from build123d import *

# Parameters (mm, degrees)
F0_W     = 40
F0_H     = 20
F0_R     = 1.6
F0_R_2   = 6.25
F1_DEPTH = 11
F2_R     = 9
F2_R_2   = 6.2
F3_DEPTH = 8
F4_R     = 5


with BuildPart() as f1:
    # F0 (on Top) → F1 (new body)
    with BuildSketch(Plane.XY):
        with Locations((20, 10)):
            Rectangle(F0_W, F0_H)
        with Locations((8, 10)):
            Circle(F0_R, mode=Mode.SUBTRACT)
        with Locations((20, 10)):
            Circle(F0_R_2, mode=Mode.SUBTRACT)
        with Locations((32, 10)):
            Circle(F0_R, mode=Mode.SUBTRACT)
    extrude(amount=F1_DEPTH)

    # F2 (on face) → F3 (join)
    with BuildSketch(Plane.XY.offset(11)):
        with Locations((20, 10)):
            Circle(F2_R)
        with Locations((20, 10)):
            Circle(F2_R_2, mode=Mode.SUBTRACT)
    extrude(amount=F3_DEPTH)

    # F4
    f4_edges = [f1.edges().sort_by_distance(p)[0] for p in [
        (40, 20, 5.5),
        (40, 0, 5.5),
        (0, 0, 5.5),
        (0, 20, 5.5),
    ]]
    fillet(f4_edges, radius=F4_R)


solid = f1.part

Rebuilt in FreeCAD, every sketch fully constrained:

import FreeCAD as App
import Part
import Sketcher
Q = App.Units.Quantity


def edges_at(feature, points):
    """Names of the edges that pass closest to the given points."""
    edges = feature.Shape.Edges
    near = lambda p: min(range(len(edges)), key=lambda i: edges[i].distToShape(Part.Vertex(*p))[0])
    return sorted({f"Edge{near(p) + 1}" for p in points})

doc = App.newDocument("Part")
body = doc.addObject("PartDesign::Body", "Body")

sketch1 = body.newObject("Sketcher::SketchObject", "Sketch")
sketch1.AttachmentSupport = (doc.getObject("XY_Plane"), [""])
sketch1.MapMode = "FlatFace"
sketch1.addGeometry([
    Part.LineSegment(App.Vector(0, 20, 0), App.Vector(0, 0, 0)),
    Part.LineSegment(App.Vector(0, 0, 0), App.Vector(40, 0, 0)),
    Part.LineSegment(App.Vector(40, 0, 0), App.Vector(40, 20, 0)),
    Part.LineSegment(App.Vector(40, 20, 0), App.Vector(0, 20, 0)),
    Part.Circle(App.Vector(8, 10, 0), App.Vector(0, 0, 1), 1.6),
    Part.Circle(App.Vector(20, 10, 0), App.Vector(0, 0, 1), 6.2),
    Part.Circle(App.Vector(32, 10, 0), App.Vector(0, 0, 1), 1.6),
], False)
sketch1.addConstraint([
    Sketcher.Constraint("Coincident", 0, 2, 1, 1),
    Sketcher.Constraint("Coincident", 1, 2, 2, 1),
    Sketcher.Constraint("Coincident", 2, 2, 3, 1),
    Sketcher.Constraint("Coincident", 3, 2, 0, 1),
    Sketcher.Constraint("Vertical", 0),
    Sketcher.Constraint("Horizontal", 1),
    Sketcher.Constraint("Vertical", 2),
    Sketcher.Constraint("Horizontal", 3),
    Sketcher.Constraint("Coincident", 0, 2, -1, 1),
    Sketcher.Constraint("Equal", 4, 6),
    Sketcher.Constraint("Horizontal", 4, 3, 5, 3),
    Sketcher.Constraint("Horizontal", 5, 3, 6, 3),
    Sketcher.Constraint("Diameter", 4, Q("3.2 mm")),
    Sketcher.Constraint("Diameter", 5, Q("12.5 mm")),
    Sketcher.Constraint("DistanceX", 1, 1, 1, 2, Q("40 mm")),
    Sketcher.Constraint("DistanceY", 0, 2, 0, 1, Q("20 mm")),
    Sketcher.Constraint("DistanceX", -1, 1, 4, 3, Q("8 mm")),
    Sketcher.Constraint("DistanceY", -1, 1, 4, 3, Q("10 mm")),
    Sketcher.Constraint("DistanceX", -1, 1, 5, 3, Q("20 mm")),
    Sketcher.Constraint("DistanceX", -1, 1, 6, 3, Q("32 mm")),
])
pad1 = body.newObject("PartDesign::Pad", "Pad")
pad1.Profile = sketch1
pad1.Length = 11

sketch2 = body.newObject("Sketcher::SketchObject", "Sketch001")
sketch2.AttachmentSupport = (doc.getObject("XY_Plane"), [""])
sketch2.MapMode = "FlatFace"
sketch2.AttachmentOffset = App.Placement(App.Vector(0, 0, 11), App.Rotation())
sketch2.addGeometry([
    Part.Circle(App.Vector(20, 10, 0), App.Vector(0, 0, 1), 9),
    Part.Circle(App.Vector(20, 10, 0), App.Vector(0, 0, 1), 6),
], False)
sketch2.addConstraint([
    Sketcher.Constraint("Coincident", 1, 3, 0, 3),
    Sketcher.Constraint("Diameter", 0, Q("18 mm")),
    Sketcher.Constraint("Diameter", 1, Q("12.4 mm")),
    Sketcher.Constraint("DistanceX", -1, 1, 0, 3, Q("20 mm")),
    Sketcher.Constraint("DistanceY", -1, 1, 0, 3, Q("10 mm")),
])
pad2 = body.newObject("PartDesign::Pad", "Pad001")
pad2.Profile = sketch2
pad2.Length = 8
doc.recompute()

fillet = body.newObject("PartDesign::Fillet", "Fillet")
fillet.Base = (pad2, edges_at(pad2, [
    (40, 20, 5.5),
    (40, 0, 5.5),
    (0, 0, 5.5),
    (0, 20, 5.5),
]))
fillet.Radius = 5

doc.recompute()
